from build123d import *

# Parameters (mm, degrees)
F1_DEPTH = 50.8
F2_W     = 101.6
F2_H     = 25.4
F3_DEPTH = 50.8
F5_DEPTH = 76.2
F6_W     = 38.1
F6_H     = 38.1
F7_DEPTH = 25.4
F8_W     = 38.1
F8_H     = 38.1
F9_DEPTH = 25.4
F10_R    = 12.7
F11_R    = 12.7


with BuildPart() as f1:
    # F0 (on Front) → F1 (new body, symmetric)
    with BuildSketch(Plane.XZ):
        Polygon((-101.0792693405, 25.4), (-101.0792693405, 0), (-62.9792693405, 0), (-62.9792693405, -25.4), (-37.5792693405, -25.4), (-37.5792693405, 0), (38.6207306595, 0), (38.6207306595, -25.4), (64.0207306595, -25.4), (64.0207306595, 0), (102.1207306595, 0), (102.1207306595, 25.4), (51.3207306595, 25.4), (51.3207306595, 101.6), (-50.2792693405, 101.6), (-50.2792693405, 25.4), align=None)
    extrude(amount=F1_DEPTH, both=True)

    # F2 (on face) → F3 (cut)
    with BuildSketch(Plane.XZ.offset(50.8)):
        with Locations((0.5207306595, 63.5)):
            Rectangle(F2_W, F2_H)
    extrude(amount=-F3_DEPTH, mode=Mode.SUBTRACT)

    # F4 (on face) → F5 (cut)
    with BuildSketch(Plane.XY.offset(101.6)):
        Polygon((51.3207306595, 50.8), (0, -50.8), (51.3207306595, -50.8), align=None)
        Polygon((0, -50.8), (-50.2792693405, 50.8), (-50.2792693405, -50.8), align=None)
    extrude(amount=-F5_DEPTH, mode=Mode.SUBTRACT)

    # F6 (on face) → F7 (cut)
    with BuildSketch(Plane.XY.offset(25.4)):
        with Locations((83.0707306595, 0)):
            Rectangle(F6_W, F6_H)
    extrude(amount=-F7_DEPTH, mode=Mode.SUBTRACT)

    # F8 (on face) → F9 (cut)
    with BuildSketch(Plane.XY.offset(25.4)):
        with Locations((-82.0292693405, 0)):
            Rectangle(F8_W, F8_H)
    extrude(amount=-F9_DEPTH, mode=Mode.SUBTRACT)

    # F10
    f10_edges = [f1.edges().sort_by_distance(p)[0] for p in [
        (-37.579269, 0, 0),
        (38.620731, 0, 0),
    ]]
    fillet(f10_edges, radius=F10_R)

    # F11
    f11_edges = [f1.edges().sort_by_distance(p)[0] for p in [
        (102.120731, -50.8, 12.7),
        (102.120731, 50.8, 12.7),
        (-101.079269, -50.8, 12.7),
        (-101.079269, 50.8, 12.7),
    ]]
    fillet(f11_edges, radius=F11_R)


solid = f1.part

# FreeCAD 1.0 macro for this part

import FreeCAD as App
import Part
import Sketcher
from FreeCAD import Vector
Q = App.Units.Quantity


def edges_at(feature, points):
    """Names of the edges that pass closest to the given points."""
    edges = feature.Shape.Edges
    near = lambda p: min(range(len(edges)), key=lambda i: edges[i].distToShape(Part.Vertex(*p))[0])
    return sorted({f"Edge{near(p) + 1}" for p in points})


def add_polygon(sketch, points):
    """Adds a closed chain of lines whose ends are joined by coincident constraints."""
    first, n = sketch.GeometryCount, len(points)
    for a, b in zip(points, points[1:] + points[:1]):
        sketch.addGeometry(Part.LineSegment(App.Vector(*a, 0), App.Vector(*b, 0)), False)
    for i in range(n):
        sketch.addConstraint(Sketcher.Constraint("Coincident", first + i, 2, first + (i + 1) % n, 1))

doc = App.newDocument("Part")
body = doc.addObject("PartDesign::Body", "Body")

# Sketch on XZ plane
sketch1 = body.newObject("Sketcher::SketchObject", "Sketch")
sketch1.AttachmentSupport = (doc.getObject("XZ_Plane"), [""])
sketch1.MapMode = "FlatFace"
add_polygon(sketch1, [(-101.079269, 25.4), (-101.079269, 0), (-62.979269, 0), (-62.979269, -25.4), (-37.579269, -25.4), (-37.579269, 0), (38.620731, 0), (38.620731, -25.4), (64.020731, -25.4), (64.020731, 0), (102.120731, 0), (102.120731, 25.4), (51.320731, 25.4), (51.320731, 101.6), (-50.279269, 101.6), (-50.279269, 25.4)])  # lines 0-15
sketch1.addConstraint(Sketcher.Constraint("Vertical", 0))
sketch1.addConstraint(Sketcher.Constraint("Horizontal", 1))
sketch1.addConstraint(Sketcher.Constraint("Vertical", 2))
sketch1.addConstraint(Sketcher.Constraint("Horizontal", 3))
sketch1.addConstraint(Sketcher.Constraint("Vertical", 4))
sketch1.addConstraint(Sketcher.Constraint("Horizontal", 5))
sketch1.addConstraint(Sketcher.Constraint("Vertical", 6))
sketch1.addConstraint(Sketcher.Constraint("Horizontal", 7))
sketch1.addConstraint(Sketcher.Constraint("Vertical", 8))
sketch1.addConstraint(Sketcher.Constraint("Horizontal", 9))
sketch1.addConstraint(Sketcher.Constraint("Vertical", 10))
sketch1.addConstraint(Sketcher.Constraint("Horizontal", 11))
sketch1.addConstraint(Sketcher.Constraint("Vertical", 12))
sketch1.addConstraint(Sketcher.Constraint("Horizontal", 13))
sketch1.addConstraint(Sketcher.Constraint("Vertical", 14))
sketch1.addConstraint(Sketcher.Constraint("Horizontal", 15))
sketch1.addConstraint(Sketcher.Constraint("PointOnObject", 0, 2, -1))
sketch1.addConstraint(Sketcher.Constraint("PointOnObject", 4, 2, -1))
sketch1.addConstraint(Sketcher.Constraint("PointOnObject", 8, 2, -1))
sketch1.addConstraint(Sketcher.Constraint("Horizontal", 3, 2, 6, 2))
sketch1.addConstraint(Sketcher.Constraint("Horizontal", 11, 2, 14, 2))
sketch1.addConstraint(Sketcher.Constraint("Equal", 3, 7))
sketch1.addConstraint(Sketcher.Constraint("Equal", 1, 9))
sketch1.addConstraint(Sketcher.Constraint("Equal", 11, 15))
sketch1.addConstraint(Sketcher.Constraint("Equal", 7, 0))
sketch1.addConstraint(Sketcher.Constraint("Equal", 0, 2))
sketch1.addConstraint(Sketcher.Constraint("Equal", 5, 12))
sketch1.addConstraint(Sketcher.Constraint("DistanceX", 3, 1, 3, 2, Q("1 in")))
sketch1.addConstraint(Sketcher.Constraint("DistanceX", 5, 1, 5, 2, Q("3 in")))
sketch1.addConstraint(Sketcher.Constraint("DistanceX", 11, 2, 11, 1, Q("2 in")))
sketch1.addConstraint(Sketcher.Constraint("DistanceX", 13, 2, 13, 1, Q("4 in")))
sketch1.addConstraint(Sketcher.Constraint("DistanceX", 0, 2, -1, 1, Q("101.079269 mm")))
pad1 = body.newObject("PartDesign::Pad", "Pad")
pad1.Profile = sketch1
pad1.Length = Q("4 in")
pad1.Midplane = True

# Sketch on XZ plane
sketch2 = body.newObject("Sketcher::SketchObject", "Sketch001")
sketch2.AttachmentSupport = (doc.getObject("XZ_Plane"), [""])
sketch2.MapMode = "FlatFace"
sketch2.AttachmentOffset = App.Placement(Vector(0, 0, 2 * 25.4), App.Rotation())
add_polygon(sketch2, [(-50.279269, 76.2), (-50.279269, 50.8), (51.320731, 50.8), (51.320731, 76.2)])  # lines 0-3
sketch2.addConstraint(Sketcher.Constraint("Vertical", 0))
sketch2.addConstraint(Sketcher.Constraint("Horizontal", 1))
sketch2.addConstraint(Sketcher.Constraint("Vertical", 2))
sketch2.addConstraint(Sketcher.Constraint("Horizontal", 3))
sketch2.addConstraint(Sketcher.Constraint("DistanceX", 1, 1, 1, 2, Q("4 in")))
sketch2.addConstraint(Sketcher.Constraint("DistanceY", 0, 2, 0, 1, Q("1 in")))
sketch2.addConstraint(Sketcher.Constraint("DistanceY", -1, 1, 0, 2, Q("2 in")))
sketch2.addConstraint(Sketcher.Constraint("DistanceX", 0, 2, -1, 1, Q("50.279269 mm")))
pocket1 = body.newObject("PartDesign::Pocket", "Pocket")
pocket1.Profile = sketch2
pocket1.Length = Q("2 in")

# Sketch on XY plane
sketch3 = body.newObject("Sketcher::SketchObject", "Sketch002")
sketch3.AttachmentSupport = (doc.getObject("XY_Plane"), [""])
sketch3.MapMode = "FlatFace"
sketch3.AttachmentOffset = App.Placement(Vector(0, 0, 4 * 25.4), App.Rotation())
add_polygon(sketch3, [(51.320731, 50.8), (0, -50.8), (51.320731, -50.8)])  # lines 0-2
add_polygon(sketch3, [(0, -50.8), (-50.279269, 50.8), (-50.279269, -50.8)])  # lines 3-5
sketch3.addConstraint(Sketcher.Constraint("Horizontal", 1))
sketch3.addConstraint(Sketcher.Constraint("Vertical", 2))
sketch3.addConstraint(Sketcher.Constraint("Vertical", 4))
sketch3.addConstraint(Sketcher.Constraint("Horizontal", 5))
sketch3.addConstraint(Sketcher.Constraint("Coincident", 5, 2, 0, 2))
sketch3.addConstraint(Sketcher.Constraint("PointOnObject", 0, 2, -2))
sketch3.addConstraint(Sketcher.Constraint("Horizontal", 2, 2, 3, 2))
sketch3.addConstraint(Sketcher.Constraint("DistanceY", 2, 1, 2, 2, Q("4 in")))
sketch3.addConstraint(Sketcher.Constraint("DistanceY", 0, 2, -1, 1, Q("2 in")))
sketch3.addConstraint(Sketcher.Constraint("DistanceX", 3, 2, 2, 2, Q("4 in")))
sketch3.addConstraint(Sketcher.Constraint("DistanceX", 1, 1, 1, 2, Q("51.320731 mm")))
pocket2 = body.newObject("PartDesign::Pocket", "Pocket001")
pocket2.Profile = sketch3
pocket2.Length = Q("3 in")

# Sketch on XY plane
sketch4 = body.newObject("Sketcher::SketchObject", "Sketch003")
sketch4.AttachmentSupport = (doc.getObject("XY_Plane"), [""])
sketch4.MapMode = "FlatFace"
sketch4.AttachmentOffset = App.Placement(Vector(0, 0, 1 * 25.4), App.Rotation())
add_polygon(sketch4, [(64.020731, 19.05), (64.020731, -19.05), (102.120731, -19.05), (102.120731, 19.05)])  # lines 0-3
sketch4.addConstraint(Sketcher.Constraint("Vertical", 0))
sketch4.addConstraint(Sketcher.Constraint("Horizontal", 1))
sketch4.addConstraint(Sketcher.Constraint("Vertical", 2))
sketch4.addConstraint(Sketcher.Constraint("Horizontal", 3))
sketch4.addConstraint(Sketcher.Constraint("Equal", 3, 0))
sketch4.addConstraint(Sketcher.Constraint("DistanceX", 1, 1, 1, 2, Q("1.5 in")))
sketch4.addConstraint(Sketcher.Constraint("DistanceY", 0, 2, -1, 1, Q("0.75 in")))
sketch4.addConstraint(Sketcher.Constraint("DistanceX", -1, 1, 0, 2, Q("64.020731 mm")))
pocket3 = body.newObject("PartDesign::Pocket", "Pocket002")
pocket3.Profile = sketch4
pocket3.Length = Q("1 in")

# Sketch on XY plane
sketch5 = body.newObject("Sketcher::SketchObject", "Sketch004")
sketch5.AttachmentSupport = (doc.getObject("XY_Plane"), [""])
sketch5.MapMode = "FlatFace"
sketch5.AttachmentOffset = App.Placement(Vector(0, 0, 1 * 25.4), App.Rotation())
add_polygon(sketch5, [(-101.079269, 19.05), (-101.079269, -19.05), (-62.979269, -19.05), (-62.979269, 19.05)])  # lines 0-3
sketch5.addConstraint(Sketcher.Constraint("Vertical", 0))
sketch5.addConstraint(Sketcher.Constraint("Horizontal", 1))
sketch5.addConstraint(Sketcher.Constraint("Vertical", 2))
sketch5.addConstraint(Sketcher.Constraint("Horizontal", 3))
sketch5.addConstraint(Sketcher.Constraint("Equal", 3, 0))
sketch5.addConstraint(Sketcher.Constraint("DistanceX", 1, 1, 1, 2, Q("1.5 in")))
sketch5.addConstraint(Sketcher.Constraint("DistanceY", 0, 2, -1, 1, Q("0.75 in")))
sketch5.addConstraint(Sketcher.Constraint("DistanceX", 0, 2, -1, 1, Q("101.079269 mm")))
pocket4 = body.newObject("PartDesign::Pocket", "Pocket003")
pocket4.Profile = sketch5
pocket4.Length = Q("1 in")
doc.recompute()

fillet = body.newObject("PartDesign::Fillet", "Fillet")
fillet.Base = (pocket4, edges_at(pocket4, [(-37.579, 0, 0), (38.621, 0, 0)]))
fillet.Radius = Q("0.5 in")
doc.recompute()

fillet2 = body.newObject("PartDesign::Fillet", "Fillet001")
fillet2.Base = (fillet, edges_at(fillet, [
    (102.121, -50.8, 12.7),
    (102.121, 50.8, 12.7),
    (-101.079, -50.8, 12.7),
    (-101.079, 50.8, 12.7),
]))
fillet2.Radius = Q("0.5 in")

doc.recompute()
